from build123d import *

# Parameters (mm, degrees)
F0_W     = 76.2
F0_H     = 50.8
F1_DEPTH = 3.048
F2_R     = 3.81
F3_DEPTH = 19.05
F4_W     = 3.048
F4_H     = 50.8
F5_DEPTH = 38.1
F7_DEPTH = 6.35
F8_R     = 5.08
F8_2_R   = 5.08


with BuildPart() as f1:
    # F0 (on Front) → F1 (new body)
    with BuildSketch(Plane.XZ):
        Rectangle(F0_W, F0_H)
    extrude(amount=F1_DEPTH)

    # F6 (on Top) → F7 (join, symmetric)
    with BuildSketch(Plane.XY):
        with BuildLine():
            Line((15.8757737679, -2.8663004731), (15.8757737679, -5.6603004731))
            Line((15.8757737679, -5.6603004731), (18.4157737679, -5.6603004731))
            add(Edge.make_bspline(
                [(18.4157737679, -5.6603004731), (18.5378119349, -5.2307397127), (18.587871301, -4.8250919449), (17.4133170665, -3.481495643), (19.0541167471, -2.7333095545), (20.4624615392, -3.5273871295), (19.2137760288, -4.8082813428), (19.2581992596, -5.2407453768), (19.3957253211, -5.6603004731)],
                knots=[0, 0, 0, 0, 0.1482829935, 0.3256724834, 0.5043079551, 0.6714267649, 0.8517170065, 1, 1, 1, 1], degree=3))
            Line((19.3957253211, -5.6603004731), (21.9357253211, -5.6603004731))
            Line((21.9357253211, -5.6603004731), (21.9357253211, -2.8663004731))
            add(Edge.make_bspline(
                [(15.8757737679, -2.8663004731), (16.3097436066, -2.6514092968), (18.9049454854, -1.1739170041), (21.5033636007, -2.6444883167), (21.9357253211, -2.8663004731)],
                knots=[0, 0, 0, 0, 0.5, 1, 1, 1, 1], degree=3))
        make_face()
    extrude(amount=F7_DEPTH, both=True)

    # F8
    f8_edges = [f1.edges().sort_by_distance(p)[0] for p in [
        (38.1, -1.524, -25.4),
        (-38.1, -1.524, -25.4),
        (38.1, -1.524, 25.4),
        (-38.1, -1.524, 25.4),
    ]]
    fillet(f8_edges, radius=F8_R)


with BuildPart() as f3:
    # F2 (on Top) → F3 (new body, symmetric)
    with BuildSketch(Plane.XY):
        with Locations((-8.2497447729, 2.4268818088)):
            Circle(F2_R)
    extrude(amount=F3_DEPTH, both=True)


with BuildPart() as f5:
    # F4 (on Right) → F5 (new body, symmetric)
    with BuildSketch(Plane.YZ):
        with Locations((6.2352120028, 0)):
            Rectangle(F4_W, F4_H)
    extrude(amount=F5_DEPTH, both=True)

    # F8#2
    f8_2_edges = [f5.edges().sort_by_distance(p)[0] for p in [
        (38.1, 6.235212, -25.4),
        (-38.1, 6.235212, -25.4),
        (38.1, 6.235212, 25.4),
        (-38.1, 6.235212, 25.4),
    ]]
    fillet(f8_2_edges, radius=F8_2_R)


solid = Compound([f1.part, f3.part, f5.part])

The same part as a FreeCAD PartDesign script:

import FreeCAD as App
import Part
import Sketcher
Q = App.Units.Quantity


def edges_at(feature, points):
    """Names of the edges that pass closest to the given points."""
    edges = feature.Shape.Edges
    near = lambda p: min(range(len(edges)), key=lambda i: edges[i].distToShape(Part.Vertex(*p))[0])
    return sorted({f"Edge{near(p) + 1}" for p in points})


def add_polygon(sketch, points):
    """Adds a closed chain of lines whose ends are joined by coincident constraints."""
    first, n = sketch.GeometryCount, len(points)
    for a, b in zip(points, points[1:] + points[:1]):
        sketch.addGeometry(Part.LineSegment(App.Vector(*a, 0), App.Vector(*b, 0)), False)
    for i in range(n):
        sketch.addConstraint(Sketcher.Constraint("Coincident", first + i, 2, first + (i + 1) % n, 1))

doc = App.newDocument("Part")
body = doc.addObject("PartDesign::Body", "Body")

# Sketch on XZ plane
sketch1 = doc.addObject("Sketcher::SketchObject", "Sketch")
body.addObject(sketch1)
sketch1.AttachmentSupport = (doc.XZ_Plane, [""])
sketch1.MapMode = "FlatFace"
add_polygon(sketch1, [(-38, 25), (-38, -25), (38, -25), (38, 25)])  # lines 0-3
sketch1.addConstraint(Sketcher.Constraint("Vertical", 0))
sketch1.addConstraint(Sketcher.Constraint("Horizontal", 1))
sketch1.addConstraint(Sketcher.Constraint("Vertical", 2))
sketch1.addConstraint(Sketcher.Constraint("Horizontal", 3))
sketch1.addConstraint(Sketcher.Constraint("Symmetric", 0, 2, 2, 2, -1, 1))
sketch1.addConstraint(Sketcher.Constraint("DistanceX", 1, 1, 1, 2, Q("3 in")))
sketch1.addConstraint(Sketcher.Constraint("DistanceY", 0, 2, 0, 1, Q("2 in")))
pad1 = doc.addObject("PartDesign::Pad", "Pad")
body.addObject(pad1)
pad1.Profile = sketch1
pad1.Length = Q("0.12 in")

# Sketch on XY plane
sketch2 = doc.addObject("Sketcher::SketchObject", "Sketch001")
body.addObject(sketch2)
sketch2.AttachmentSupport = (doc.XY_Plane, [""])
sketch2.MapMode = "FlatFace"
sketch2.addGeometry(Part.LineSegment(App.Vector(15.875774, -2.8663, 0), App.Vector(15.875774, -5.6603, 0)), False)
sketch2.addGeometry(Part.LineSegment(App.Vector(15.875774, -5.6603, 0), App.Vector(18.415774, -5.6603, 0)), False)
sketch2.addGeometry(Part.BSplineCurve([App.Vector(18.415774, -5.6603, 0), App.Vector(18.537812, -5.23074, 0), App.Vector(18.587871, -4.825092, 0), App.Vector(17.413317, -3.481496, 0), App.Vector(19.054117, -2.73331, 0), App.Vector(20.462462, -3.527387, 0), App.Vector(19.213776, -4.808281, 0), App.Vector(19.258199, -5.240745, 0), App.Vector(19.395725, -5.6603, 0)], [4, 1, 1, 1, 1, 1, 4], [0, 0.148282993, 0.325672483, 0.504307955, 0.671426765, 0.851717007, 1], False, 3, [1, 1, 1, 1, 1, 1, 1, 1, 1], False), False)
sketch2.addGeometry(Part.LineSegment(App.Vector(19.395725, -5.6603, 0), App.Vector(21.935725, -5.6603, 0)), False)
sketch2.addGeometry(Part.LineSegment(App.Vector(21.935725, -5.6603, 0), App.Vector(21.935725, -2.8663, 0)), False)
sketch2.addGeometry(Part.BSplineCurve([App.Vector(15.875774, -2.8663, 0), App.Vector(16.309744, -2.651409, 0), App.Vector(18.904945, -1.173917, 0), App.Vector(21.503364, -2.644488, 0), App.Vector(21.935725, -2.8663, 0)], [4, 1, 4], [0, 0.5, 1], False, 3, [1, 1, 1, 1, 1], False), False)
sketch2.addConstraint(Sketcher.Constraint("Block", 2))
sketch2.addConstraint(Sketcher.Constraint("Block", 5))
sketch2.addConstraint(Sketcher.Constraint("Coincident", 0, 2, 1, 1))
sketch2.addConstraint(Sketcher.Constraint("Coincident", 1, 2, 2, 1))
sketch2.addConstraint(Sketcher.Constraint("Coincident", 2, 2, 3, 1))
sketch2.addConstraint(Sketcher.Constraint("Coincident", 3, 2, 4, 1))
sketch2.addConstraint(Sketcher.Constraint("Coincident", 4, 2, 5, 2))
sketch2.addConstraint(Sketcher.Constraint("Coincident", 5, 1, 0, 1))
sketch2.addConstraint(Sketcher.Constraint("Vertical", 0))
sketch2.addConstraint(Sketcher.Constraint("Horizontal", 1))
sketch2.addConstraint(Sketcher.Constraint("Horizontal", 3))
sketch2.addConstraint(Sketcher.Constraint("Vertical", 4))
pad2 = doc.addObject("PartDesign::Pad", "Pad001")
body.addObject(pad2)
pad2.Profile = sketch2
pad2.Length = Q("0.5 in")
pad2.Midplane = True
doc.recompute()

fillet = doc.addObject("PartDesign::Fillet", "Fillet")
body.addObject(fillet)
fillet.Base = (pad2, edges_at(pad2, [
    (38.1, -1.524, -25.4),
    (-38.1, -1.524, -25.4),
    (38.1, -1.524, 25.4),
    (-38.1, -1.524, 25.4),
]))
fillet.Radius = Q("0.2 in")
body2 = doc.addObject("PartDesign::Body", "Body001")

# Sketch on XY plane
sketch3 = doc.addObject("Sketcher::SketchObject", "Sketch002")
body2.addObject(sketch3)
sketch3.AttachmentSupport = (doc.getObject("XY_Plane001"), [""])
sketch3.MapMode = "FlatFace"
sketch3.addGeometry(Part.Circle(App.Vector(-8.2, 2.4, 0), App.Vector(0, 0, 1), 3.8), False)
sketch3.addConstraint(Sketcher.Constraint("Diameter", 0, Q("0.3 in")))
sketch3.addConstraint(Sketcher.Constraint("DistanceY", -1, 1, 0, 3, Q("2.426882 mm")))
sketch3.addConstraint(Sketcher.Constraint("DistanceX", 0, 3, -1, 1, Q("8.249745 mm")))
pad3 = doc.addObject("PartDesign::Pad", "Pad002")
body2.addObject(pad3)
pad3.Profile = sketch3
pad3.Length = Q("1.5 in")
pad3.Midplane = True
body3 = doc.addObject("PartDesign::Body", "Body002")

# Sketch on YZ plane
sketch4 = doc.addObject("Sketcher::SketchObject", "Sketch003")
body3.addObject(sketch4)
sketch4.AttachmentSupport = (doc.getObject("YZ_Plane002"), [""])
sketch4.MapMode = "FlatFace"
add_polygon(sketch4, [(4.7, 25.4), (4.7, -25.4), (7.8, -25.4), (7.8, 25.4)])  # lines 0-3
sketch4.addConstraint(Sketcher.Constraint("Vertical", 0))
sketch4.addConstraint(Sketcher.Constraint("Horizontal", 1))
sketch4.addConstraint(Sketcher.Constraint("Vertical", 2))
sketch4.addConstraint(Sketcher.Constraint("Horizontal", 3))
sketch4.addConstraint(Sketcher.Constraint("DistanceY", 0, 2, 0, 1, Q("2 in")))
sketch4.addConstraint(Sketcher.Constraint("DistanceY", 0, 2, -1, 1, Q("1 in")))
sketch4.addConstraint(Sketcher.Constraint("DistanceX", 1, 1, 1, 2, Q("0.12 in")))
sketch4.addConstraint(Sketcher.Constraint("DistanceX", -1, 1, 0, 2, Q("4.711212 mm")))
pad4 = doc.addObject("PartDesign::Pad", "Pad003")
body3.addObject(pad4)
pad4.Profile = sketch4
pad4.Length = Q("3 in")
pad4.Midplane = True
doc.recompute()

fillet2 = doc.addObject("PartDesign::Fillet", "Fillet001")
body3.addObject(fillet2)
fillet2.Base = (pad4, edges_at(pad4, [
    (38.1, 6.235, -25.4),
    (-38.1, 6.235, -25.4),
    (38.1, 6.235, 25.4),
    (-38.1, 6.235, 25.4),
]))
fillet2.Radius = Q("0.2 in")

doc.recompute()
